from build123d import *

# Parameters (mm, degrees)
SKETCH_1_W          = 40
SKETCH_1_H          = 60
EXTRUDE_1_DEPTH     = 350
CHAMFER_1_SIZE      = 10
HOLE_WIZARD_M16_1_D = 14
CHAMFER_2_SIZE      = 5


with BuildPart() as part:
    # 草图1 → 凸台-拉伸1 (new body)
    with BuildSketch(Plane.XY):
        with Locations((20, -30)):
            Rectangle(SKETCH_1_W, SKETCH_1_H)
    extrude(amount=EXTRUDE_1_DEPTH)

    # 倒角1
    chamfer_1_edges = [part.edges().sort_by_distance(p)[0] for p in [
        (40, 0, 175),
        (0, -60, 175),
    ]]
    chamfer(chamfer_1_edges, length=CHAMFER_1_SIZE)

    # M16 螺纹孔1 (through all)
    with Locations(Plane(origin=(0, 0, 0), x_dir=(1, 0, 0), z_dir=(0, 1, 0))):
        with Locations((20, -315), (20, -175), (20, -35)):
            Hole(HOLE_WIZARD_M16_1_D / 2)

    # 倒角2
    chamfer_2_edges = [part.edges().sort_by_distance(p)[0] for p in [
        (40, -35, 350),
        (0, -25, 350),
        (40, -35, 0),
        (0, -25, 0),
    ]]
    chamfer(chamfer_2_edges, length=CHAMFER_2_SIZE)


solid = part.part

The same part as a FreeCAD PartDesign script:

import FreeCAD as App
import Part
import Sketcher


def edges_at(feature, points):
    """Names of the edges that pass closest to the given points."""
    edges = feature.Shape.Edges
    near = lambda p: min(range(len(edges)), key=lambda i: edges[i].distToShape(Part.Vertex(*p))[0])
    return sorted({f"Edge{near(p) + 1}" for p in points})


def add_polygon(sketch, points):
    """Adds a closed chain of lines whose ends are joined by coincident constraints."""
    first, n = sketch.GeometryCount, len(points)
    for a, b in zip(points, points[1:] + points[:1]):
        sketch.addGeometry(Part.LineSegment(App.Vector(*a, 0), App.Vector(*b, 0)), False)
    for i in range(n):
        sketch.addConstraint(Sketcher.Constraint("Coincident", first + i, 2, first + (i + 1) % n, 1))

doc = App.newDocument("Part")
params = doc.addObject("Spreadsheet::Sheet", "Params")
for row, (alias, value) in enumerate([
    ("sketch1_width", "40 mm"),
    ("sketch1_height", "60 mm"),
    ("pad1_length", "350 mm"),
    ("chamfer_size", "10 mm"),
    ("sketch2_diameter", "14 mm"),
    ("hole_diameter", "14 mm"),
    ("chamfer2_size", "5 mm"),
], start=1):
    params.set(f"A{row}", alias)
    params.set(f"B{row}", "=" + value)
    params.setAlias(f"B{row}", alias)

body = doc.addObject("PartDesign::Body", "Body")

# Sketch on XY plane
sketch1 = body.newObject("Sketcher::SketchObject", "Sketch")
sketch1.AttachmentSupport = (doc.getObject("XY_Plane"), [""])
sketch1.MapMode = "FlatFace"
add_polygon(sketch1, [(0, 0), (0, -60), (40, -60), (40, 0)])  # lines 0-3
sketch1.addConstraint([
    Sketcher.Constraint("Vertical", 0),
    Sketcher.Constraint("Horizontal", 1),
    Sketcher.Constraint("Vertical", 2),
    Sketcher.Constraint("Horizontal", 3),
    Sketcher.Constraint("Coincident", 3, 2, -1, 1),
    Sketcher.Constraint("DistanceX", 1, 1, 1, 2, 40.0),
    Sketcher.Constraint("DistanceY", 0, 2, 0, 1, 60.0),
])
sketch1.setExpression("Constraints[9]", "Params.sketch1_width")
sketch1.setExpression("Constraints[10]", "Params.sketch1_height")
pad1 = body.newObject("PartDesign::Pad", "Pad")
pad1.Profile = sketch1
pad1.setExpression("Length", "Params.pad1_length")
doc.recompute()

chamfer = body.newObject("PartDesign::Chamfer", "Chamfer")
chamfer.Base = (pad1, edges_at(pad1, [(40, 0, 175), (0, -60, 175)]))
chamfer.setExpression("Size", "Params.chamfer_size")

# Sketch on XZ plane
sketch2 = body.newObject("Sketcher::SketchObject", "Sketch001")
sketch2.AttachmentSupport = (doc.getObject("XZ_Plane"), [""])
sketch2.MapMode = "FlatFace"
sketch2.addGeometry([
    Part.Circle(App.Vector(20, 315, 0), App.Vector(0, 0, 1), 7),
    Part.Circle(App.Vector(20, 175, 0), App.Vector(0, 0, 1), 7),
    Part.Circle(App.Vector(20, 35, 0), App.Vector(0, 0, 1), 7),
], False)
sketch2.addConstraint([
    Sketcher.Constraint("Equal", 0, 1),
    Sketcher.Constraint("Equal", 1, 2),
    Sketcher.Constraint("Vertical", 0, 3, 1, 3),
    Sketcher.Constraint("Vertical", 1, 3, 2, 3),
    Sketcher.Constraint("Diameter", 0, 14.0),
    Sketcher.Constraint("DistanceX", -1, 1, 0, 3, 20.0),
    Sketcher.Constraint("DistanceY", -1, 1, 0, 3, 315.0),
    Sketcher.Constraint("DistanceY", -1, 1, 1, 3, 175.0),
    Sketcher.Constraint("DistanceY", -1, 1, 2, 3, 35.0),
])
sketch2.setExpression("Constraints[4]", "Params.sketch2_diameter")
doc.recompute()
hole = body.newObject("PartDesign::Hole", "Hole")
hole.Profile = sketch2
hole.ThreadType = "None"
hole.setExpression("Diameter", "Params.hole_diameter")
hole.DepthType = "ThroughAll"
hole.Reversed = True
doc.recompute()

chamfer2 = body.newObject("PartDesign::Chamfer", "Chamfer001")
chamfer2.Base = (hole, edges_at(hole, [
    (40, -35, 350),
    (0, -25, 350),
    (40, -35, 0),
    (0, -25, 0),
]))
chamfer2.setExpression("Size", "Params.chamfer2_size")

doc.recompute()
